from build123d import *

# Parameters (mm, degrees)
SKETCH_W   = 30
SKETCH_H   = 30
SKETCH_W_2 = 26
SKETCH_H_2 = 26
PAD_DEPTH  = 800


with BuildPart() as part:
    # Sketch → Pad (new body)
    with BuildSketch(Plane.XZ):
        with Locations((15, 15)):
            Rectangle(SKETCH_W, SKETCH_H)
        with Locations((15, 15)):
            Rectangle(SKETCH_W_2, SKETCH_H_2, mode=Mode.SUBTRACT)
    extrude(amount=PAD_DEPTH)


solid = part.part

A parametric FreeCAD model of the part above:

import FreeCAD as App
import Part
import Sketcher

V = App.Vector
Q = App.Units.Quantity


def add_polygon(sketch, points):
    """Adds a closed chain of lines whose ends are joined by coincident constraints."""
    first, n = sketch.GeometryCount, len(points)
    for a, b in zip(points, points[1:] + points[:1]):
        sketch.addGeometry(Part.LineSegment(App.Vector(*a, 0), App.Vector(*b, 0)), False)
    for i in range(n):
        sketch.addConstraint(Sketcher.Constraint("Coincident", first + i, 2, first + (i + 1) % n, 1))

doc = App.newDocument("Part")
body = doc.addObject("PartDesign::Body", "Body")

# Sketch on XZ plane
sketch1 = body.newObject("Sketcher::SketchObject", "Sketch")
sketch1.AttachmentSupport = (doc.getObject("XZ_Plane"), [""])
sketch1.MapMode = "FlatFace"
add_polygon(sketch1, [(0, 30), (0, 0), (30, 0), (30, 30)])  # lines 0-3
add_polygon(sketch1, [(28, 2), (2, 2), (2, 28), (28, 28)])  # lines 4-7
sketch1.addConstraint([
    Sketcher.Constraint("Vertical", 0),
    Sketcher.Constraint("Horizontal", 1),
    Sketcher.Constraint("Vertical", 2),
    Sketcher.Constraint("Horizontal", 3),
    Sketcher.Constraint("Horizontal", 4),
    Sketcher.Constraint("Vertical", 5),
    Sketcher.Constraint("Horizontal", 6),
    Sketcher.Constraint("Vertical", 7),
    Sketcher.Constraint("Coincident", 0, 2, -1, 1),
    Sketcher.Constraint("Equal", 3, 0),
    Sketcher.Constraint("Equal", 6, 5),
    Sketcher.Constraint("DistanceX", 1, 1, 1, 2, Q("30 mm")),
    Sketcher.Constraint("DistanceX", 4, 2, 4, 1, Q("26 mm")),
    Sketcher.Constraint("DistanceX", -1, 1, 4, 2, Q("2 mm")),
    Sketcher.Constraint("DistanceY", -1, 1, 4, 2, Q("2 mm")),
])
pad1 = body.newObject("PartDesign::Pad", "Pad")
pad1.Profile = sketch1
pad1.Length = 800

doc.recompute()
